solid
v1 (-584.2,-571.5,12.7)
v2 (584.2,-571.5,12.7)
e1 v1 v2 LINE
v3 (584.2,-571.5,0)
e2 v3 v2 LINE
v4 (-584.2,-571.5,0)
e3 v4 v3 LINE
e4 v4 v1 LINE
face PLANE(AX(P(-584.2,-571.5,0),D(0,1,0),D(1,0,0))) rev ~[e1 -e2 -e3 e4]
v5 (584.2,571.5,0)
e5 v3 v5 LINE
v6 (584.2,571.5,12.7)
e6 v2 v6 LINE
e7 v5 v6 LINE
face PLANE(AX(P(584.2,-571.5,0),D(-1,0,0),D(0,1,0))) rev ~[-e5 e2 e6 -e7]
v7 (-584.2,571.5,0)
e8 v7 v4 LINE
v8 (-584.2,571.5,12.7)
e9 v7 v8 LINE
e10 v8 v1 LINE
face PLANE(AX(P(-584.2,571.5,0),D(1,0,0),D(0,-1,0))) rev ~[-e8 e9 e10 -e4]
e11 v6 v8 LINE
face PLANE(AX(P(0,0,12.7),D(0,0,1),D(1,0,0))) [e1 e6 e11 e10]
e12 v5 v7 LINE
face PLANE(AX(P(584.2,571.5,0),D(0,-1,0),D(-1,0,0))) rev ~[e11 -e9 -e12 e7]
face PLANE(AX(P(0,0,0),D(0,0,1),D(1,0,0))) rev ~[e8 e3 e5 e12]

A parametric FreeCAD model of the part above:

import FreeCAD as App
import Part
import Sketcher
from FreeCAD import Vector
Q = App.Units.Quantity


def add_polygon(sketch, points):
    """Adds a closed chain of lines whose ends are joined by coincident constraints."""
    first, n = sketch.GeometryCount, len(points)
    for a, b in zip(points, points[1:] + points[:1]):
        sketch.addGeometry(Part.LineSegment(App.Vector(*a, 0), App.Vector(*b, 0)), False)
    for i in range(n):
        sketch.addConstraint(Sketcher.Constraint("Coincident", first + i, 2, first + (i + 1) % n, 1))

doc = App.newDocument("Part")
body = doc.addObject("PartDesign::Body", "Body")

# Sketch on XY plane
sketch1 = body.newObject("Sketcher::SketchObject", "Sketch")
sketch1.AttachmentSupport = (doc.getObject("XY_Plane"), [""])
sketch1.MapMode = "FlatFace"
add_polygon(sketch1, [(-584.2, 571.5), (-584.2, -571.5), (584.2, -571.5), (584.2, 571.5)])  # lines 0-3
sketch1.addConstraint([
    Sketcher.Constraint("Vertical", 0),
    Sketcher.Constraint("Horizontal", 1),
    Sketcher.Constraint("Vertical", 2),
    Sketcher.Constraint("Horizontal", 3),
    Sketcher.Constraint("Symmetric", 0, 2, 2, 2, -1, 1),
    Sketcher.Constraint("DistanceX", 1, 1, 1, 2, Q("46 in")),
    Sketcher.Constraint("DistanceY", 0, 2, 0, 1, Q("45 in")),
])
pad1 = body.newObject("PartDesign::Pad", "Pad")
pad1.Profile = sketch1
pad1.Length = Q("0.5 in")

doc.recompute()
